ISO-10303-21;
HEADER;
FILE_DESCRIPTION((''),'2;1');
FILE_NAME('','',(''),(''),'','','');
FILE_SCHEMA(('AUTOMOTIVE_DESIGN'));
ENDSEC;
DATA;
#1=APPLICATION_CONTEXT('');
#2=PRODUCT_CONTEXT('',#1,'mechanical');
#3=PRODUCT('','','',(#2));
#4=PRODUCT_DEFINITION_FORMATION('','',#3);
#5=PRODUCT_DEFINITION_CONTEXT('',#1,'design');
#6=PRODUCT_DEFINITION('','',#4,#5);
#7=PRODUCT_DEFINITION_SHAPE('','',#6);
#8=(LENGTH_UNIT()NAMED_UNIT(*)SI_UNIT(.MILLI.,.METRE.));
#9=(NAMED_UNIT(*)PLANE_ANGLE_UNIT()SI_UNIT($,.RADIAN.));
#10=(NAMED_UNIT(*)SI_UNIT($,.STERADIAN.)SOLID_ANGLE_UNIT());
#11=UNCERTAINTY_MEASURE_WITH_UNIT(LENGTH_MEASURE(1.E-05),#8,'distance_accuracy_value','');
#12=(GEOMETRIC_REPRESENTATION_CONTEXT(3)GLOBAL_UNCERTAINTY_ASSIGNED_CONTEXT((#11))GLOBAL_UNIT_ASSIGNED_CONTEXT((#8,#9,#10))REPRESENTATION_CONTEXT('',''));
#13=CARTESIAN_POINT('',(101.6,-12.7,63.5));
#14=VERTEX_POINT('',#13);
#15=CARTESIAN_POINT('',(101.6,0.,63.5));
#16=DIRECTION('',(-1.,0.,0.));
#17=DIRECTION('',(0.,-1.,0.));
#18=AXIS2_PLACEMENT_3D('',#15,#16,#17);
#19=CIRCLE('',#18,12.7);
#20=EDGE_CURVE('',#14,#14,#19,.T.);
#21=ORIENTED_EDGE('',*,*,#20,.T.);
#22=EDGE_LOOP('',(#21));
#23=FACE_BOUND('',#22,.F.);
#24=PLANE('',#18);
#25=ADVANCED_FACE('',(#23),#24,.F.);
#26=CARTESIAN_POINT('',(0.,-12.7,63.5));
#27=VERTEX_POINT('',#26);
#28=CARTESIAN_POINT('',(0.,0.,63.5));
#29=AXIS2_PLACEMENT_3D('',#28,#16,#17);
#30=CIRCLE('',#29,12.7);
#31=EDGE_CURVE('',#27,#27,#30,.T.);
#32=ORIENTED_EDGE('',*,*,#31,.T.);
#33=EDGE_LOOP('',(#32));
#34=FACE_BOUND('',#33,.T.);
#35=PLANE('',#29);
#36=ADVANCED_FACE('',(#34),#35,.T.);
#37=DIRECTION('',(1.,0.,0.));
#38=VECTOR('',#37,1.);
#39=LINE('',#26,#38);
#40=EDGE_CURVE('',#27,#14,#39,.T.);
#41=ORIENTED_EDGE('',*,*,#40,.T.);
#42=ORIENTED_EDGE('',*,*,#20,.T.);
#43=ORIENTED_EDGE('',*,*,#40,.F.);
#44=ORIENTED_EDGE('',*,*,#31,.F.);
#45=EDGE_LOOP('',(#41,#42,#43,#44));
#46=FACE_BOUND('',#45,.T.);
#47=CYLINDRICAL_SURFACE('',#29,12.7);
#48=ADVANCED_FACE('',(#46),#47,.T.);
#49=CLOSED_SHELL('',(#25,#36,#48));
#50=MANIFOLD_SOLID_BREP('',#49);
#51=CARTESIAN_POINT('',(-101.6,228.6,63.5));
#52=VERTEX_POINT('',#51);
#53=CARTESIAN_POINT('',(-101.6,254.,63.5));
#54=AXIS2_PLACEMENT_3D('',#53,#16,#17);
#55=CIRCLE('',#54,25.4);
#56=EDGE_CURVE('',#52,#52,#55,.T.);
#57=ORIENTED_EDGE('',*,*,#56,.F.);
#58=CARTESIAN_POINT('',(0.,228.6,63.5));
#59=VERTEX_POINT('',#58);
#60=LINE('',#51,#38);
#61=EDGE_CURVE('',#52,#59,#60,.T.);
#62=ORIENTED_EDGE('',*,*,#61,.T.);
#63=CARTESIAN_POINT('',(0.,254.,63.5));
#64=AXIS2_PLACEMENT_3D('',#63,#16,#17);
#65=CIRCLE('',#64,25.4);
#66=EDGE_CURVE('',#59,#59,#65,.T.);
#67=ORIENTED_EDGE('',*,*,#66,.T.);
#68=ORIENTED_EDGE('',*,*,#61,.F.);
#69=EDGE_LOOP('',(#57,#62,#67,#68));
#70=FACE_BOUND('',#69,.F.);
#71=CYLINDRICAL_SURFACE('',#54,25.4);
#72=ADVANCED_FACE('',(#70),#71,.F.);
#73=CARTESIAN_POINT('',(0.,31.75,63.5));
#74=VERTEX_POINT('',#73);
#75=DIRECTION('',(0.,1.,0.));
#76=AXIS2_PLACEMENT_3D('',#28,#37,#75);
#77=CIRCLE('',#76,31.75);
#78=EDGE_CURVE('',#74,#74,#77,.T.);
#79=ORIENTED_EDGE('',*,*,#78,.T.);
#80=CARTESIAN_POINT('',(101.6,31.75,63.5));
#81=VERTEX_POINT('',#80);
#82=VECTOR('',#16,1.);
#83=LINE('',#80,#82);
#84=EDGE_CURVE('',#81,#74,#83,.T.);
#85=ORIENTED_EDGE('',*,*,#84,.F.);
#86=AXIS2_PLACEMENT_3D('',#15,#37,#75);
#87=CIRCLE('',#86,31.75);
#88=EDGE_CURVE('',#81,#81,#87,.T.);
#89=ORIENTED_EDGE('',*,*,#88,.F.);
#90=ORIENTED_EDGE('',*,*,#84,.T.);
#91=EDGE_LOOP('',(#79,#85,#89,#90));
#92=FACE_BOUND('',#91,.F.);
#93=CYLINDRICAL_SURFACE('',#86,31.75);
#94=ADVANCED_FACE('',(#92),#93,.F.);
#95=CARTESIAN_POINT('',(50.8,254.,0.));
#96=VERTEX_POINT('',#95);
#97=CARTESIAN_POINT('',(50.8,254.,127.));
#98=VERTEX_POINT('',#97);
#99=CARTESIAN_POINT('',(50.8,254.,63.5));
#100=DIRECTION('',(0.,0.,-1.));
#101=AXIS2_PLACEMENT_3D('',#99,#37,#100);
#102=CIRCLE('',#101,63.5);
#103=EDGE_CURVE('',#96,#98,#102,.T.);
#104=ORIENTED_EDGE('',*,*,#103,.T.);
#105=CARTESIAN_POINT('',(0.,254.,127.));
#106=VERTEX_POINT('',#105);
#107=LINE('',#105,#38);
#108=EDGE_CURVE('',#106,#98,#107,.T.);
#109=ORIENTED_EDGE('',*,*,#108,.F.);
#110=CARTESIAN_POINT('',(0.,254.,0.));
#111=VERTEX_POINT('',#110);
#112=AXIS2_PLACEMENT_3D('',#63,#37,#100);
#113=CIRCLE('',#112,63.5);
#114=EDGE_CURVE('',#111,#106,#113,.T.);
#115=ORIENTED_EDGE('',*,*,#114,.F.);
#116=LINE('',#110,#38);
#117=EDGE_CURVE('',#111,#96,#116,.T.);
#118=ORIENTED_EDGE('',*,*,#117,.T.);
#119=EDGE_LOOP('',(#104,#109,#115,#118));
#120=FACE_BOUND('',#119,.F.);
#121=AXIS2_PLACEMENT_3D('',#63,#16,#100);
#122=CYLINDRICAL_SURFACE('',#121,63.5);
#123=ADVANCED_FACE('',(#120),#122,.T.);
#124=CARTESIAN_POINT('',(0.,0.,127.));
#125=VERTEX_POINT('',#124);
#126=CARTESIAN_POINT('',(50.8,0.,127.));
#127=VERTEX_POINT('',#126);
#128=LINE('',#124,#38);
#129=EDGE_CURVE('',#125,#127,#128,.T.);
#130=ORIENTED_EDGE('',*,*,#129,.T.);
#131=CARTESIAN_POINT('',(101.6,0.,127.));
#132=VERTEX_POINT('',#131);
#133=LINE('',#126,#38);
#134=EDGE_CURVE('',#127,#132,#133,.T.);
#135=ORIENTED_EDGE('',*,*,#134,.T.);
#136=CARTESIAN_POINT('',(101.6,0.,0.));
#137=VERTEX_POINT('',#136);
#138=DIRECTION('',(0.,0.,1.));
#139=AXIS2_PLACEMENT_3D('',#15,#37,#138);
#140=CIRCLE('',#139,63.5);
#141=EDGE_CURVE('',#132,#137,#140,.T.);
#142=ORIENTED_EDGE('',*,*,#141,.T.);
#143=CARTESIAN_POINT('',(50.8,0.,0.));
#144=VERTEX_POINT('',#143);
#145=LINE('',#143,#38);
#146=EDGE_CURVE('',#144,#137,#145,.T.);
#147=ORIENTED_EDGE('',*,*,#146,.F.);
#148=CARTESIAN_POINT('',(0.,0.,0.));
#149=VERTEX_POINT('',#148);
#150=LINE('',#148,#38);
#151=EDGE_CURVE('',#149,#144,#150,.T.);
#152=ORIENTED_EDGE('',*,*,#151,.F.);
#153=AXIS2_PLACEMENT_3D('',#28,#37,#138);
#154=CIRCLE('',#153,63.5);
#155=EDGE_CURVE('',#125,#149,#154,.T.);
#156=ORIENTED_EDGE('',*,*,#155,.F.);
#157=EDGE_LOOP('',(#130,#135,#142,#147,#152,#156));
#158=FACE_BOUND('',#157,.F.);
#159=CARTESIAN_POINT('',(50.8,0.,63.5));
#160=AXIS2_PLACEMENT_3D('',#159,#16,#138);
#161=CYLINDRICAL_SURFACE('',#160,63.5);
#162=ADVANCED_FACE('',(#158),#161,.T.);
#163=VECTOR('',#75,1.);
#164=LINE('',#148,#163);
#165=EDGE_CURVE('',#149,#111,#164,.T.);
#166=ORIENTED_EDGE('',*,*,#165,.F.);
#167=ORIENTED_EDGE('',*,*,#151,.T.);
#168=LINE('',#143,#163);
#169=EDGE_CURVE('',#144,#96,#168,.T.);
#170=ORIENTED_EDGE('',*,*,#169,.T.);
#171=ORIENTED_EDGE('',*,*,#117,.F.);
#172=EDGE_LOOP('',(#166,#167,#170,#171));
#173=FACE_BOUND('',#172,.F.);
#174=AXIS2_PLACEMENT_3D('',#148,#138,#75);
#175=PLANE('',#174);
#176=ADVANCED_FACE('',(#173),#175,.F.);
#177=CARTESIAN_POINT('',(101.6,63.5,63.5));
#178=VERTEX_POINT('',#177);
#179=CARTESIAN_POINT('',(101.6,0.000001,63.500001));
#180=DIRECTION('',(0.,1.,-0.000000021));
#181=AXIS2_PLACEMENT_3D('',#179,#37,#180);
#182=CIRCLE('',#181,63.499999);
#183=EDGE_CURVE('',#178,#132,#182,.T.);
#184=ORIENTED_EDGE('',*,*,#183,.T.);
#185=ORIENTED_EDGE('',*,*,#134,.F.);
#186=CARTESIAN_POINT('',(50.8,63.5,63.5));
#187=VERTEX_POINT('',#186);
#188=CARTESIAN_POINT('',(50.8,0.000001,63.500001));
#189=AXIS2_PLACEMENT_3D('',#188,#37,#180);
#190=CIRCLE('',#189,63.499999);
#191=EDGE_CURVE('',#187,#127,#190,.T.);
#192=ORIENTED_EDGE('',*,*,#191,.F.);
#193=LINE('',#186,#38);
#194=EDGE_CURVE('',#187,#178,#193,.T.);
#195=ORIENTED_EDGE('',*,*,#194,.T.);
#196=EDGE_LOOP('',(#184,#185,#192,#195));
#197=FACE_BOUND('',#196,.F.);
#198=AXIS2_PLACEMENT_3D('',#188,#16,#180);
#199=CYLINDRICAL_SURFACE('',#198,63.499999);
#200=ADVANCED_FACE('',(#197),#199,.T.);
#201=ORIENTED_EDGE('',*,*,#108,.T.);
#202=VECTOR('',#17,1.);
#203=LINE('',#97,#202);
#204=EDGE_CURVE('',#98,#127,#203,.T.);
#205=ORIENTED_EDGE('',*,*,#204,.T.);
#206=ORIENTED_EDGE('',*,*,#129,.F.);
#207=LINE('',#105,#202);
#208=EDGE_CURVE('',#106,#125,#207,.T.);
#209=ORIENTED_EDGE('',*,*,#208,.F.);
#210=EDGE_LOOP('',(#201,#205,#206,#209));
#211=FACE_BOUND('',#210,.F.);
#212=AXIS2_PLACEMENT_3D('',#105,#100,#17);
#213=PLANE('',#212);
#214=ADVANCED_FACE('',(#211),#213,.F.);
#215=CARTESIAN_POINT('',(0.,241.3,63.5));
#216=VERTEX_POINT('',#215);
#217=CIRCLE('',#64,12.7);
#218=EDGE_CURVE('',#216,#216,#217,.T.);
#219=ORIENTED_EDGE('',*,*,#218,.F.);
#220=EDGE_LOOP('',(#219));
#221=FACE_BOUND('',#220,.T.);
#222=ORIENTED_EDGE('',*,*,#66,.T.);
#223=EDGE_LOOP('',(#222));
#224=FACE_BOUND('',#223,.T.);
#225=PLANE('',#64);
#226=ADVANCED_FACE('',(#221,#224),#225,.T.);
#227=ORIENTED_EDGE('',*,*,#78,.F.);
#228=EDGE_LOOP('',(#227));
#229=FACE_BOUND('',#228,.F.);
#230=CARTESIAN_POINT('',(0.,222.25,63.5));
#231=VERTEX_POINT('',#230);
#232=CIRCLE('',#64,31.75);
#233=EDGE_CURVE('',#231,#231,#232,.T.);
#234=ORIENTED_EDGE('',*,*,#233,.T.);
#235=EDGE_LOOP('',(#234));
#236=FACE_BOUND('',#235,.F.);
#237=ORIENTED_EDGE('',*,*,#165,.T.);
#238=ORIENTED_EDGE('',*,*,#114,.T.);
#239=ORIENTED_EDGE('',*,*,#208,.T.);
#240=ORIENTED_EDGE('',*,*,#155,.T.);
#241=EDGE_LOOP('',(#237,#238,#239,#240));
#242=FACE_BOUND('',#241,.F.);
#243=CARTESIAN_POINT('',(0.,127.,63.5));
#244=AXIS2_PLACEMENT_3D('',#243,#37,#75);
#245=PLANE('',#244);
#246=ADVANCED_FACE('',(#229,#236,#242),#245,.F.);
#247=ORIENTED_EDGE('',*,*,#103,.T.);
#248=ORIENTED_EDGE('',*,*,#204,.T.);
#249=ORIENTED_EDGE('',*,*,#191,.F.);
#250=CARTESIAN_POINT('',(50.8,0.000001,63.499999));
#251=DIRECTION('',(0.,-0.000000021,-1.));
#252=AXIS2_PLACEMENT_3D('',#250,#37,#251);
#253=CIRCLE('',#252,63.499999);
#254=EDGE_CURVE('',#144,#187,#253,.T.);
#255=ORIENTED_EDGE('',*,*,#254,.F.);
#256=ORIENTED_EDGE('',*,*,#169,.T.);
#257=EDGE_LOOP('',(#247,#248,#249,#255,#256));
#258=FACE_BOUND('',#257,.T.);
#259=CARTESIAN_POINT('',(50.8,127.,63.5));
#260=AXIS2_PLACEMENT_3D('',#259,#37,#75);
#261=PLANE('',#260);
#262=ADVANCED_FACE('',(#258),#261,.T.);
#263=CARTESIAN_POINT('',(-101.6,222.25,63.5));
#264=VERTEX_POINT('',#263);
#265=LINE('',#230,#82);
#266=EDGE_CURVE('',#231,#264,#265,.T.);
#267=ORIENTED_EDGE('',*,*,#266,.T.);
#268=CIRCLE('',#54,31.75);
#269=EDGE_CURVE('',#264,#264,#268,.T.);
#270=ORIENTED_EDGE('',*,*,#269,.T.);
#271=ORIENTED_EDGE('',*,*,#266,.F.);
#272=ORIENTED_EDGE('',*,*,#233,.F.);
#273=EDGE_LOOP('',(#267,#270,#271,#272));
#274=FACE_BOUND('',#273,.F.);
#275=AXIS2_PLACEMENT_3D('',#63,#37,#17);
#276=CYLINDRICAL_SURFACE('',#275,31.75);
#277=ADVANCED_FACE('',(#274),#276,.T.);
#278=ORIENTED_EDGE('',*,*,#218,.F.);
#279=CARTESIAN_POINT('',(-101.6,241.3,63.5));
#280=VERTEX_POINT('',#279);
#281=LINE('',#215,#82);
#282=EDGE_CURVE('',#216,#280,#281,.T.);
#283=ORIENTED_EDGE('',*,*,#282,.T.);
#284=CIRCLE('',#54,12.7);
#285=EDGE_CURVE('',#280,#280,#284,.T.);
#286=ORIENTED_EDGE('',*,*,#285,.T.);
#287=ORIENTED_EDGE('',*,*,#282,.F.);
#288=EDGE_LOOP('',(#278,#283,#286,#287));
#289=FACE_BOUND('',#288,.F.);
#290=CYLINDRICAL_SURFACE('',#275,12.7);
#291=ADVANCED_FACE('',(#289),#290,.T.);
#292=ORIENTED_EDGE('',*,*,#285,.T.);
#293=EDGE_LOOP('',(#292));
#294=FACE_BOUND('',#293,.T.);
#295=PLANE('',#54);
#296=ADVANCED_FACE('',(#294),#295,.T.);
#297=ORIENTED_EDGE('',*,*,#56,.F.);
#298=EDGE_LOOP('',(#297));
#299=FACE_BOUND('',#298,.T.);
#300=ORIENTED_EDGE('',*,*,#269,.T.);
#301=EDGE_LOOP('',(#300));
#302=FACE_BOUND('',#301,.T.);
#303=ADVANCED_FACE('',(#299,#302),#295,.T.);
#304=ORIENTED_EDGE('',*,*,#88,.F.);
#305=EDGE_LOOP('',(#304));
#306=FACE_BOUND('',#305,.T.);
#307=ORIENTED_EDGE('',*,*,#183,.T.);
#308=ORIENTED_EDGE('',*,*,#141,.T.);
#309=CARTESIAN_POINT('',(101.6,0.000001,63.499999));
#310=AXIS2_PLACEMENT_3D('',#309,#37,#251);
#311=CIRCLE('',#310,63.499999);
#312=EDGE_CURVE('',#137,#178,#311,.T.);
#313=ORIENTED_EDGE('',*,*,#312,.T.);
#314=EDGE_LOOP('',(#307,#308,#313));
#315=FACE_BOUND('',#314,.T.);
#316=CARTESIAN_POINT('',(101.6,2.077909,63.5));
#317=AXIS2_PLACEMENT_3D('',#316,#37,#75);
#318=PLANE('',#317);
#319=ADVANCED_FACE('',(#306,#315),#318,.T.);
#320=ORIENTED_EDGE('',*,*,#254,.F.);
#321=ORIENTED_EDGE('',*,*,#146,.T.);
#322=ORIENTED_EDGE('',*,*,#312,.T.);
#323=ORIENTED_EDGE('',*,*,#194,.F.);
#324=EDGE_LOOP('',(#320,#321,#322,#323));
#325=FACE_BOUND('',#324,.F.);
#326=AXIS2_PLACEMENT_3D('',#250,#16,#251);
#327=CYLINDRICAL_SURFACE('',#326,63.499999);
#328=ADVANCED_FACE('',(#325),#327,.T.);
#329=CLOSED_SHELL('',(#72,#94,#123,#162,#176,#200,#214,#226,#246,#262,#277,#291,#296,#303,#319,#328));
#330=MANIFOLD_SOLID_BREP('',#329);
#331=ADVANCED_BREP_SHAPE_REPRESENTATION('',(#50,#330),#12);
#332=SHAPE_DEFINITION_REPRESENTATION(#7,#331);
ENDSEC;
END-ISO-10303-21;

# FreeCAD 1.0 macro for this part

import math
import FreeCAD as App
import Part
import Sketcher
from FreeCAD import Vector
Q = App.Units.Quantity

doc = App.newDocument("Part")
body = doc.addObject("PartDesign::Body", "Body")

# Sketch on YZ plane
sketch1 = doc.addObject("Sketcher::SketchObject", "Sketch")
body.addObject(sketch1)
sketch1.AttachmentSupport = (doc.YZ_Plane, [""])
sketch1.MapMode = "FlatFace"
sketch1.addGeometry([
    Part.ArcOfCircle(Part.Circle(Vector(0, 63.5, 0), Vector(0, 0, 1), 63.5), math.radians(90), math.radians(270)),
    Part.LineSegment(Vector(0, 0, 0), Vector(254, 0, 0)),
    Part.ArcOfCircle(Part.Circle(Vector(254, 63.5, 0), Vector(0, 0, 1), 63.5), math.radians(-90), math.radians(90)),
    Part.LineSegment(Vector(254, 127, 0), Vector(0, 127, 0)),
], False)
sketch1.addConstraint([
    Sketcher.Constraint("Tangent", 0, 2, 1, 1),
    Sketcher.Constraint("Tangent", 1, 2, 2, 1),
    Sketcher.Constraint("Tangent", 2, 2, 3, 1),
    Sketcher.Constraint("Tangent", 3, 2, 0, 1),
    Sketcher.Constraint("Horizontal", 1),
    Sketcher.Constraint("Horizontal", 3),
    Sketcher.Constraint("Coincident", 0, 2, -1, 1),
    Sketcher.Constraint("Radius", 0, Q("2.5 in")),
    Sketcher.Constraint("DistanceX", 1, 1, 1, 2, Q("10 in")),
])
pad1 = doc.addObject("PartDesign::Pad", "Pad")
body.addObject(pad1)
pad1.Profile = sketch1
pad1.Length = Q("2 in")

# Sketch on YZ plane
sketch2 = doc.addObject("Sketcher::SketchObject", "Sketch001")
body.addObject(sketch2)
sketch2.AttachmentSupport = (doc.YZ_Plane, [""])
sketch2.MapMode = "FlatFace"
sketch2.AttachmentOffset = App.Placement(Vector(0, 0, 2 * 25.4), App.Rotation())
sketch2.addGeometry([
    Part.ArcOfCircle(Part.Circle(Vector(0.000001, 63.499999, 0), Vector(0, 0, 1), 63.499999), math.radians(-90.000001), math.radians(0.000001)),
    Part.ArcOfCircle(Part.Circle(Vector(0.000001, 63.500001, 0), Vector(0, 0, 1), 63.499999), math.radians(-0.000001), math.radians(90.000001)),
    Part.ArcOfCircle(Part.Circle(Vector(0, 63.5, 0), Vector(0, 0, 1), 63.5), math.radians(90), math.radians(270)),
], False)
sketch2.addConstraint([
    Sketcher.Constraint("Tangent", 0, 2, 1, 1),
    Sketcher.Constraint("Tangent", 1, 2, 2, 1),
    Sketcher.Constraint("Tangent", 2, 2, 0, 1),
    Sketcher.Constraint("Coincident", 2, 2, -1, 1),
    Sketcher.Constraint("PointOnObject", 0, 3, -2),
    Sketcher.Constraint("PointOnObject", 1, 2, -2),
    Sketcher.Constraint("Horizontal", 2, 3, 0, 2),
    Sketcher.Constraint("Radius", 0, Q("2.4999999 in")),
])
pad2 = doc.addObject("PartDesign::Pad", "Pad001")
body.addObject(pad2)
pad2.Profile = sketch2
pad2.Length = Q("2 in")

# Sketch on YZ plane
sketch3 = doc.addObject("Sketcher::SketchObject", "Sketch002")
body.addObject(sketch3)
sketch3.AttachmentSupport = (doc.YZ_Plane, [""])
sketch3.MapMode = "FlatFace"
sketch3.AttachmentOffset = App.Placement(Vector(0, 0, 4 * 25.4), App.Rotation())
sketch3.addGeometry(Part.Circle(Vector(0, 63.5, 0), Vector(0, 0, 1), 31.75), False)
sketch3.addConstraint([
    Sketcher.Constraint("PointOnObject", 0, 3, -2),
    Sketcher.Constraint("Diameter", 0, Q("2.5 in")),
    Sketcher.Constraint("DistanceY", -1, 1, 0, 3, Q("2.5 in")),
])
pocket1 = doc.addObject("PartDesign::Pocket", "Pocket")
body.addObject(pocket1)
pocket1.Profile = sketch3
pocket1.Type = "ThroughAll"

# Sketch on YZ plane
sketch4 = doc.addObject("Sketcher::SketchObject", "Sketch003")
body.addObject(sketch4)
sketch4.AttachmentSupport = (doc.YZ_Plane, [""])
sketch4.MapMode = "FlatFace"
sketch4.addGeometry(Part.Circle(Vector(254, 63.5, 0), Vector(0, 0, 1), 31.75), False)
sketch4.addConstraint([
    Sketcher.Constraint("Diameter", 0, Q("2.5 in")),
    Sketcher.Constraint("DistanceX", -1, 1, 0, 3, Q("10 in")),
    Sketcher.Constraint("DistanceY", -1, 1, 0, 3, Q("2.5 in")),
])
pad3 = doc.addObject("PartDesign::Pad", "Pad002")
body.addObject(pad3)
pad3.Profile = sketch4
pad3.Length = Q("4 in")
pad3.Reversed = True

# Sketch on YZ plane
sketch5 = doc.addObject("Sketcher::SketchObject", "Sketch004")
body.addObject(sketch5)
sketch5.AttachmentSupport = (doc.YZ_Plane, [""])
sketch5.MapMode = "FlatFace"
sketch5.AttachmentOffset = App.Placement(Vector(0, 0, -4 * 25.4), App.Rotation())
sketch5.addGeometry(Part.Circle(Vector(254, 63.5, 0), Vector(0, 0, 1), 25.4), False)
sketch5.addConstraint([
    Sketcher.Constraint("Diameter", 0, Q("2 in")),
    Sketcher.Constraint("DistanceX", -1, 1, 0, 3, Q("10 in")),
    Sketcher.Constraint("DistanceY", -1, 1, 0, 3, Q("2.5 in")),
])
pocket2 = doc.addObject("PartDesign::Pocket", "Pocket001")
body.addObject(pocket2)
pocket2.Profile = sketch5
pocket2.Length = Q("4 in")
pocket2.Reversed = True

# Sketch on YZ plane
sketch6 = doc.addObject("Sketcher::SketchObject", "Sketch005")
body.addObject(sketch6)
sketch6.AttachmentSupport = (doc.YZ_Plane, [""])
sketch6.MapMode = "FlatFace"
sketch6.addGeometry(Part.Circle(Vector(254, 63.5, 0), Vector(0, 0, 1), 12.7), False)
sketch6.addConstraint([
    Sketcher.Constraint("Diameter", 0, Q("1 in")),
    Sketcher.Constraint("DistanceX", -1, 1, 0, 3, Q("10 in")),
    Sketcher.Constraint("DistanceY", -1, 1, 0, 3, Q("2.5 in")),
])
pad4 = doc.addObject("PartDesign::Pad", "Pad003")
body.addObject(pad4)
pad4.Profile = sketch6
pad4.Length = Q("4 in")
pad4.Reversed = True
body2 = doc.addObject("PartDesign::Body", "Body001")

# Sketch on YZ plane
sketch7 = doc.addObject("Sketcher::SketchObject", "Sketch006")
body2.addObject(sketch7)
sketch7.AttachmentSupport = (doc.getObject("YZ_Plane001"), [""])
sketch7.MapMode = "FlatFace"
sketch7.addGeometry(Part.Circle(Vector(0, 63.5, 0), Vector(0, 0, 1), 12.7), False)
sketch7.addConstraint([
    Sketcher.Constraint("PointOnObject", 0, 3, -2),
    Sketcher.Constraint("Diameter", 0, Q("1 in")),
    Sketcher.Constraint("DistanceY", -1, 1, 0, 3, Q("2.5 in")),
])
pad5 = doc.addObject("PartDesign::Pad", "Pad004")
body2.addObject(pad5)
pad5.Profile = sketch7
pad5.Length = Q("4 in")

doc.recompute()
